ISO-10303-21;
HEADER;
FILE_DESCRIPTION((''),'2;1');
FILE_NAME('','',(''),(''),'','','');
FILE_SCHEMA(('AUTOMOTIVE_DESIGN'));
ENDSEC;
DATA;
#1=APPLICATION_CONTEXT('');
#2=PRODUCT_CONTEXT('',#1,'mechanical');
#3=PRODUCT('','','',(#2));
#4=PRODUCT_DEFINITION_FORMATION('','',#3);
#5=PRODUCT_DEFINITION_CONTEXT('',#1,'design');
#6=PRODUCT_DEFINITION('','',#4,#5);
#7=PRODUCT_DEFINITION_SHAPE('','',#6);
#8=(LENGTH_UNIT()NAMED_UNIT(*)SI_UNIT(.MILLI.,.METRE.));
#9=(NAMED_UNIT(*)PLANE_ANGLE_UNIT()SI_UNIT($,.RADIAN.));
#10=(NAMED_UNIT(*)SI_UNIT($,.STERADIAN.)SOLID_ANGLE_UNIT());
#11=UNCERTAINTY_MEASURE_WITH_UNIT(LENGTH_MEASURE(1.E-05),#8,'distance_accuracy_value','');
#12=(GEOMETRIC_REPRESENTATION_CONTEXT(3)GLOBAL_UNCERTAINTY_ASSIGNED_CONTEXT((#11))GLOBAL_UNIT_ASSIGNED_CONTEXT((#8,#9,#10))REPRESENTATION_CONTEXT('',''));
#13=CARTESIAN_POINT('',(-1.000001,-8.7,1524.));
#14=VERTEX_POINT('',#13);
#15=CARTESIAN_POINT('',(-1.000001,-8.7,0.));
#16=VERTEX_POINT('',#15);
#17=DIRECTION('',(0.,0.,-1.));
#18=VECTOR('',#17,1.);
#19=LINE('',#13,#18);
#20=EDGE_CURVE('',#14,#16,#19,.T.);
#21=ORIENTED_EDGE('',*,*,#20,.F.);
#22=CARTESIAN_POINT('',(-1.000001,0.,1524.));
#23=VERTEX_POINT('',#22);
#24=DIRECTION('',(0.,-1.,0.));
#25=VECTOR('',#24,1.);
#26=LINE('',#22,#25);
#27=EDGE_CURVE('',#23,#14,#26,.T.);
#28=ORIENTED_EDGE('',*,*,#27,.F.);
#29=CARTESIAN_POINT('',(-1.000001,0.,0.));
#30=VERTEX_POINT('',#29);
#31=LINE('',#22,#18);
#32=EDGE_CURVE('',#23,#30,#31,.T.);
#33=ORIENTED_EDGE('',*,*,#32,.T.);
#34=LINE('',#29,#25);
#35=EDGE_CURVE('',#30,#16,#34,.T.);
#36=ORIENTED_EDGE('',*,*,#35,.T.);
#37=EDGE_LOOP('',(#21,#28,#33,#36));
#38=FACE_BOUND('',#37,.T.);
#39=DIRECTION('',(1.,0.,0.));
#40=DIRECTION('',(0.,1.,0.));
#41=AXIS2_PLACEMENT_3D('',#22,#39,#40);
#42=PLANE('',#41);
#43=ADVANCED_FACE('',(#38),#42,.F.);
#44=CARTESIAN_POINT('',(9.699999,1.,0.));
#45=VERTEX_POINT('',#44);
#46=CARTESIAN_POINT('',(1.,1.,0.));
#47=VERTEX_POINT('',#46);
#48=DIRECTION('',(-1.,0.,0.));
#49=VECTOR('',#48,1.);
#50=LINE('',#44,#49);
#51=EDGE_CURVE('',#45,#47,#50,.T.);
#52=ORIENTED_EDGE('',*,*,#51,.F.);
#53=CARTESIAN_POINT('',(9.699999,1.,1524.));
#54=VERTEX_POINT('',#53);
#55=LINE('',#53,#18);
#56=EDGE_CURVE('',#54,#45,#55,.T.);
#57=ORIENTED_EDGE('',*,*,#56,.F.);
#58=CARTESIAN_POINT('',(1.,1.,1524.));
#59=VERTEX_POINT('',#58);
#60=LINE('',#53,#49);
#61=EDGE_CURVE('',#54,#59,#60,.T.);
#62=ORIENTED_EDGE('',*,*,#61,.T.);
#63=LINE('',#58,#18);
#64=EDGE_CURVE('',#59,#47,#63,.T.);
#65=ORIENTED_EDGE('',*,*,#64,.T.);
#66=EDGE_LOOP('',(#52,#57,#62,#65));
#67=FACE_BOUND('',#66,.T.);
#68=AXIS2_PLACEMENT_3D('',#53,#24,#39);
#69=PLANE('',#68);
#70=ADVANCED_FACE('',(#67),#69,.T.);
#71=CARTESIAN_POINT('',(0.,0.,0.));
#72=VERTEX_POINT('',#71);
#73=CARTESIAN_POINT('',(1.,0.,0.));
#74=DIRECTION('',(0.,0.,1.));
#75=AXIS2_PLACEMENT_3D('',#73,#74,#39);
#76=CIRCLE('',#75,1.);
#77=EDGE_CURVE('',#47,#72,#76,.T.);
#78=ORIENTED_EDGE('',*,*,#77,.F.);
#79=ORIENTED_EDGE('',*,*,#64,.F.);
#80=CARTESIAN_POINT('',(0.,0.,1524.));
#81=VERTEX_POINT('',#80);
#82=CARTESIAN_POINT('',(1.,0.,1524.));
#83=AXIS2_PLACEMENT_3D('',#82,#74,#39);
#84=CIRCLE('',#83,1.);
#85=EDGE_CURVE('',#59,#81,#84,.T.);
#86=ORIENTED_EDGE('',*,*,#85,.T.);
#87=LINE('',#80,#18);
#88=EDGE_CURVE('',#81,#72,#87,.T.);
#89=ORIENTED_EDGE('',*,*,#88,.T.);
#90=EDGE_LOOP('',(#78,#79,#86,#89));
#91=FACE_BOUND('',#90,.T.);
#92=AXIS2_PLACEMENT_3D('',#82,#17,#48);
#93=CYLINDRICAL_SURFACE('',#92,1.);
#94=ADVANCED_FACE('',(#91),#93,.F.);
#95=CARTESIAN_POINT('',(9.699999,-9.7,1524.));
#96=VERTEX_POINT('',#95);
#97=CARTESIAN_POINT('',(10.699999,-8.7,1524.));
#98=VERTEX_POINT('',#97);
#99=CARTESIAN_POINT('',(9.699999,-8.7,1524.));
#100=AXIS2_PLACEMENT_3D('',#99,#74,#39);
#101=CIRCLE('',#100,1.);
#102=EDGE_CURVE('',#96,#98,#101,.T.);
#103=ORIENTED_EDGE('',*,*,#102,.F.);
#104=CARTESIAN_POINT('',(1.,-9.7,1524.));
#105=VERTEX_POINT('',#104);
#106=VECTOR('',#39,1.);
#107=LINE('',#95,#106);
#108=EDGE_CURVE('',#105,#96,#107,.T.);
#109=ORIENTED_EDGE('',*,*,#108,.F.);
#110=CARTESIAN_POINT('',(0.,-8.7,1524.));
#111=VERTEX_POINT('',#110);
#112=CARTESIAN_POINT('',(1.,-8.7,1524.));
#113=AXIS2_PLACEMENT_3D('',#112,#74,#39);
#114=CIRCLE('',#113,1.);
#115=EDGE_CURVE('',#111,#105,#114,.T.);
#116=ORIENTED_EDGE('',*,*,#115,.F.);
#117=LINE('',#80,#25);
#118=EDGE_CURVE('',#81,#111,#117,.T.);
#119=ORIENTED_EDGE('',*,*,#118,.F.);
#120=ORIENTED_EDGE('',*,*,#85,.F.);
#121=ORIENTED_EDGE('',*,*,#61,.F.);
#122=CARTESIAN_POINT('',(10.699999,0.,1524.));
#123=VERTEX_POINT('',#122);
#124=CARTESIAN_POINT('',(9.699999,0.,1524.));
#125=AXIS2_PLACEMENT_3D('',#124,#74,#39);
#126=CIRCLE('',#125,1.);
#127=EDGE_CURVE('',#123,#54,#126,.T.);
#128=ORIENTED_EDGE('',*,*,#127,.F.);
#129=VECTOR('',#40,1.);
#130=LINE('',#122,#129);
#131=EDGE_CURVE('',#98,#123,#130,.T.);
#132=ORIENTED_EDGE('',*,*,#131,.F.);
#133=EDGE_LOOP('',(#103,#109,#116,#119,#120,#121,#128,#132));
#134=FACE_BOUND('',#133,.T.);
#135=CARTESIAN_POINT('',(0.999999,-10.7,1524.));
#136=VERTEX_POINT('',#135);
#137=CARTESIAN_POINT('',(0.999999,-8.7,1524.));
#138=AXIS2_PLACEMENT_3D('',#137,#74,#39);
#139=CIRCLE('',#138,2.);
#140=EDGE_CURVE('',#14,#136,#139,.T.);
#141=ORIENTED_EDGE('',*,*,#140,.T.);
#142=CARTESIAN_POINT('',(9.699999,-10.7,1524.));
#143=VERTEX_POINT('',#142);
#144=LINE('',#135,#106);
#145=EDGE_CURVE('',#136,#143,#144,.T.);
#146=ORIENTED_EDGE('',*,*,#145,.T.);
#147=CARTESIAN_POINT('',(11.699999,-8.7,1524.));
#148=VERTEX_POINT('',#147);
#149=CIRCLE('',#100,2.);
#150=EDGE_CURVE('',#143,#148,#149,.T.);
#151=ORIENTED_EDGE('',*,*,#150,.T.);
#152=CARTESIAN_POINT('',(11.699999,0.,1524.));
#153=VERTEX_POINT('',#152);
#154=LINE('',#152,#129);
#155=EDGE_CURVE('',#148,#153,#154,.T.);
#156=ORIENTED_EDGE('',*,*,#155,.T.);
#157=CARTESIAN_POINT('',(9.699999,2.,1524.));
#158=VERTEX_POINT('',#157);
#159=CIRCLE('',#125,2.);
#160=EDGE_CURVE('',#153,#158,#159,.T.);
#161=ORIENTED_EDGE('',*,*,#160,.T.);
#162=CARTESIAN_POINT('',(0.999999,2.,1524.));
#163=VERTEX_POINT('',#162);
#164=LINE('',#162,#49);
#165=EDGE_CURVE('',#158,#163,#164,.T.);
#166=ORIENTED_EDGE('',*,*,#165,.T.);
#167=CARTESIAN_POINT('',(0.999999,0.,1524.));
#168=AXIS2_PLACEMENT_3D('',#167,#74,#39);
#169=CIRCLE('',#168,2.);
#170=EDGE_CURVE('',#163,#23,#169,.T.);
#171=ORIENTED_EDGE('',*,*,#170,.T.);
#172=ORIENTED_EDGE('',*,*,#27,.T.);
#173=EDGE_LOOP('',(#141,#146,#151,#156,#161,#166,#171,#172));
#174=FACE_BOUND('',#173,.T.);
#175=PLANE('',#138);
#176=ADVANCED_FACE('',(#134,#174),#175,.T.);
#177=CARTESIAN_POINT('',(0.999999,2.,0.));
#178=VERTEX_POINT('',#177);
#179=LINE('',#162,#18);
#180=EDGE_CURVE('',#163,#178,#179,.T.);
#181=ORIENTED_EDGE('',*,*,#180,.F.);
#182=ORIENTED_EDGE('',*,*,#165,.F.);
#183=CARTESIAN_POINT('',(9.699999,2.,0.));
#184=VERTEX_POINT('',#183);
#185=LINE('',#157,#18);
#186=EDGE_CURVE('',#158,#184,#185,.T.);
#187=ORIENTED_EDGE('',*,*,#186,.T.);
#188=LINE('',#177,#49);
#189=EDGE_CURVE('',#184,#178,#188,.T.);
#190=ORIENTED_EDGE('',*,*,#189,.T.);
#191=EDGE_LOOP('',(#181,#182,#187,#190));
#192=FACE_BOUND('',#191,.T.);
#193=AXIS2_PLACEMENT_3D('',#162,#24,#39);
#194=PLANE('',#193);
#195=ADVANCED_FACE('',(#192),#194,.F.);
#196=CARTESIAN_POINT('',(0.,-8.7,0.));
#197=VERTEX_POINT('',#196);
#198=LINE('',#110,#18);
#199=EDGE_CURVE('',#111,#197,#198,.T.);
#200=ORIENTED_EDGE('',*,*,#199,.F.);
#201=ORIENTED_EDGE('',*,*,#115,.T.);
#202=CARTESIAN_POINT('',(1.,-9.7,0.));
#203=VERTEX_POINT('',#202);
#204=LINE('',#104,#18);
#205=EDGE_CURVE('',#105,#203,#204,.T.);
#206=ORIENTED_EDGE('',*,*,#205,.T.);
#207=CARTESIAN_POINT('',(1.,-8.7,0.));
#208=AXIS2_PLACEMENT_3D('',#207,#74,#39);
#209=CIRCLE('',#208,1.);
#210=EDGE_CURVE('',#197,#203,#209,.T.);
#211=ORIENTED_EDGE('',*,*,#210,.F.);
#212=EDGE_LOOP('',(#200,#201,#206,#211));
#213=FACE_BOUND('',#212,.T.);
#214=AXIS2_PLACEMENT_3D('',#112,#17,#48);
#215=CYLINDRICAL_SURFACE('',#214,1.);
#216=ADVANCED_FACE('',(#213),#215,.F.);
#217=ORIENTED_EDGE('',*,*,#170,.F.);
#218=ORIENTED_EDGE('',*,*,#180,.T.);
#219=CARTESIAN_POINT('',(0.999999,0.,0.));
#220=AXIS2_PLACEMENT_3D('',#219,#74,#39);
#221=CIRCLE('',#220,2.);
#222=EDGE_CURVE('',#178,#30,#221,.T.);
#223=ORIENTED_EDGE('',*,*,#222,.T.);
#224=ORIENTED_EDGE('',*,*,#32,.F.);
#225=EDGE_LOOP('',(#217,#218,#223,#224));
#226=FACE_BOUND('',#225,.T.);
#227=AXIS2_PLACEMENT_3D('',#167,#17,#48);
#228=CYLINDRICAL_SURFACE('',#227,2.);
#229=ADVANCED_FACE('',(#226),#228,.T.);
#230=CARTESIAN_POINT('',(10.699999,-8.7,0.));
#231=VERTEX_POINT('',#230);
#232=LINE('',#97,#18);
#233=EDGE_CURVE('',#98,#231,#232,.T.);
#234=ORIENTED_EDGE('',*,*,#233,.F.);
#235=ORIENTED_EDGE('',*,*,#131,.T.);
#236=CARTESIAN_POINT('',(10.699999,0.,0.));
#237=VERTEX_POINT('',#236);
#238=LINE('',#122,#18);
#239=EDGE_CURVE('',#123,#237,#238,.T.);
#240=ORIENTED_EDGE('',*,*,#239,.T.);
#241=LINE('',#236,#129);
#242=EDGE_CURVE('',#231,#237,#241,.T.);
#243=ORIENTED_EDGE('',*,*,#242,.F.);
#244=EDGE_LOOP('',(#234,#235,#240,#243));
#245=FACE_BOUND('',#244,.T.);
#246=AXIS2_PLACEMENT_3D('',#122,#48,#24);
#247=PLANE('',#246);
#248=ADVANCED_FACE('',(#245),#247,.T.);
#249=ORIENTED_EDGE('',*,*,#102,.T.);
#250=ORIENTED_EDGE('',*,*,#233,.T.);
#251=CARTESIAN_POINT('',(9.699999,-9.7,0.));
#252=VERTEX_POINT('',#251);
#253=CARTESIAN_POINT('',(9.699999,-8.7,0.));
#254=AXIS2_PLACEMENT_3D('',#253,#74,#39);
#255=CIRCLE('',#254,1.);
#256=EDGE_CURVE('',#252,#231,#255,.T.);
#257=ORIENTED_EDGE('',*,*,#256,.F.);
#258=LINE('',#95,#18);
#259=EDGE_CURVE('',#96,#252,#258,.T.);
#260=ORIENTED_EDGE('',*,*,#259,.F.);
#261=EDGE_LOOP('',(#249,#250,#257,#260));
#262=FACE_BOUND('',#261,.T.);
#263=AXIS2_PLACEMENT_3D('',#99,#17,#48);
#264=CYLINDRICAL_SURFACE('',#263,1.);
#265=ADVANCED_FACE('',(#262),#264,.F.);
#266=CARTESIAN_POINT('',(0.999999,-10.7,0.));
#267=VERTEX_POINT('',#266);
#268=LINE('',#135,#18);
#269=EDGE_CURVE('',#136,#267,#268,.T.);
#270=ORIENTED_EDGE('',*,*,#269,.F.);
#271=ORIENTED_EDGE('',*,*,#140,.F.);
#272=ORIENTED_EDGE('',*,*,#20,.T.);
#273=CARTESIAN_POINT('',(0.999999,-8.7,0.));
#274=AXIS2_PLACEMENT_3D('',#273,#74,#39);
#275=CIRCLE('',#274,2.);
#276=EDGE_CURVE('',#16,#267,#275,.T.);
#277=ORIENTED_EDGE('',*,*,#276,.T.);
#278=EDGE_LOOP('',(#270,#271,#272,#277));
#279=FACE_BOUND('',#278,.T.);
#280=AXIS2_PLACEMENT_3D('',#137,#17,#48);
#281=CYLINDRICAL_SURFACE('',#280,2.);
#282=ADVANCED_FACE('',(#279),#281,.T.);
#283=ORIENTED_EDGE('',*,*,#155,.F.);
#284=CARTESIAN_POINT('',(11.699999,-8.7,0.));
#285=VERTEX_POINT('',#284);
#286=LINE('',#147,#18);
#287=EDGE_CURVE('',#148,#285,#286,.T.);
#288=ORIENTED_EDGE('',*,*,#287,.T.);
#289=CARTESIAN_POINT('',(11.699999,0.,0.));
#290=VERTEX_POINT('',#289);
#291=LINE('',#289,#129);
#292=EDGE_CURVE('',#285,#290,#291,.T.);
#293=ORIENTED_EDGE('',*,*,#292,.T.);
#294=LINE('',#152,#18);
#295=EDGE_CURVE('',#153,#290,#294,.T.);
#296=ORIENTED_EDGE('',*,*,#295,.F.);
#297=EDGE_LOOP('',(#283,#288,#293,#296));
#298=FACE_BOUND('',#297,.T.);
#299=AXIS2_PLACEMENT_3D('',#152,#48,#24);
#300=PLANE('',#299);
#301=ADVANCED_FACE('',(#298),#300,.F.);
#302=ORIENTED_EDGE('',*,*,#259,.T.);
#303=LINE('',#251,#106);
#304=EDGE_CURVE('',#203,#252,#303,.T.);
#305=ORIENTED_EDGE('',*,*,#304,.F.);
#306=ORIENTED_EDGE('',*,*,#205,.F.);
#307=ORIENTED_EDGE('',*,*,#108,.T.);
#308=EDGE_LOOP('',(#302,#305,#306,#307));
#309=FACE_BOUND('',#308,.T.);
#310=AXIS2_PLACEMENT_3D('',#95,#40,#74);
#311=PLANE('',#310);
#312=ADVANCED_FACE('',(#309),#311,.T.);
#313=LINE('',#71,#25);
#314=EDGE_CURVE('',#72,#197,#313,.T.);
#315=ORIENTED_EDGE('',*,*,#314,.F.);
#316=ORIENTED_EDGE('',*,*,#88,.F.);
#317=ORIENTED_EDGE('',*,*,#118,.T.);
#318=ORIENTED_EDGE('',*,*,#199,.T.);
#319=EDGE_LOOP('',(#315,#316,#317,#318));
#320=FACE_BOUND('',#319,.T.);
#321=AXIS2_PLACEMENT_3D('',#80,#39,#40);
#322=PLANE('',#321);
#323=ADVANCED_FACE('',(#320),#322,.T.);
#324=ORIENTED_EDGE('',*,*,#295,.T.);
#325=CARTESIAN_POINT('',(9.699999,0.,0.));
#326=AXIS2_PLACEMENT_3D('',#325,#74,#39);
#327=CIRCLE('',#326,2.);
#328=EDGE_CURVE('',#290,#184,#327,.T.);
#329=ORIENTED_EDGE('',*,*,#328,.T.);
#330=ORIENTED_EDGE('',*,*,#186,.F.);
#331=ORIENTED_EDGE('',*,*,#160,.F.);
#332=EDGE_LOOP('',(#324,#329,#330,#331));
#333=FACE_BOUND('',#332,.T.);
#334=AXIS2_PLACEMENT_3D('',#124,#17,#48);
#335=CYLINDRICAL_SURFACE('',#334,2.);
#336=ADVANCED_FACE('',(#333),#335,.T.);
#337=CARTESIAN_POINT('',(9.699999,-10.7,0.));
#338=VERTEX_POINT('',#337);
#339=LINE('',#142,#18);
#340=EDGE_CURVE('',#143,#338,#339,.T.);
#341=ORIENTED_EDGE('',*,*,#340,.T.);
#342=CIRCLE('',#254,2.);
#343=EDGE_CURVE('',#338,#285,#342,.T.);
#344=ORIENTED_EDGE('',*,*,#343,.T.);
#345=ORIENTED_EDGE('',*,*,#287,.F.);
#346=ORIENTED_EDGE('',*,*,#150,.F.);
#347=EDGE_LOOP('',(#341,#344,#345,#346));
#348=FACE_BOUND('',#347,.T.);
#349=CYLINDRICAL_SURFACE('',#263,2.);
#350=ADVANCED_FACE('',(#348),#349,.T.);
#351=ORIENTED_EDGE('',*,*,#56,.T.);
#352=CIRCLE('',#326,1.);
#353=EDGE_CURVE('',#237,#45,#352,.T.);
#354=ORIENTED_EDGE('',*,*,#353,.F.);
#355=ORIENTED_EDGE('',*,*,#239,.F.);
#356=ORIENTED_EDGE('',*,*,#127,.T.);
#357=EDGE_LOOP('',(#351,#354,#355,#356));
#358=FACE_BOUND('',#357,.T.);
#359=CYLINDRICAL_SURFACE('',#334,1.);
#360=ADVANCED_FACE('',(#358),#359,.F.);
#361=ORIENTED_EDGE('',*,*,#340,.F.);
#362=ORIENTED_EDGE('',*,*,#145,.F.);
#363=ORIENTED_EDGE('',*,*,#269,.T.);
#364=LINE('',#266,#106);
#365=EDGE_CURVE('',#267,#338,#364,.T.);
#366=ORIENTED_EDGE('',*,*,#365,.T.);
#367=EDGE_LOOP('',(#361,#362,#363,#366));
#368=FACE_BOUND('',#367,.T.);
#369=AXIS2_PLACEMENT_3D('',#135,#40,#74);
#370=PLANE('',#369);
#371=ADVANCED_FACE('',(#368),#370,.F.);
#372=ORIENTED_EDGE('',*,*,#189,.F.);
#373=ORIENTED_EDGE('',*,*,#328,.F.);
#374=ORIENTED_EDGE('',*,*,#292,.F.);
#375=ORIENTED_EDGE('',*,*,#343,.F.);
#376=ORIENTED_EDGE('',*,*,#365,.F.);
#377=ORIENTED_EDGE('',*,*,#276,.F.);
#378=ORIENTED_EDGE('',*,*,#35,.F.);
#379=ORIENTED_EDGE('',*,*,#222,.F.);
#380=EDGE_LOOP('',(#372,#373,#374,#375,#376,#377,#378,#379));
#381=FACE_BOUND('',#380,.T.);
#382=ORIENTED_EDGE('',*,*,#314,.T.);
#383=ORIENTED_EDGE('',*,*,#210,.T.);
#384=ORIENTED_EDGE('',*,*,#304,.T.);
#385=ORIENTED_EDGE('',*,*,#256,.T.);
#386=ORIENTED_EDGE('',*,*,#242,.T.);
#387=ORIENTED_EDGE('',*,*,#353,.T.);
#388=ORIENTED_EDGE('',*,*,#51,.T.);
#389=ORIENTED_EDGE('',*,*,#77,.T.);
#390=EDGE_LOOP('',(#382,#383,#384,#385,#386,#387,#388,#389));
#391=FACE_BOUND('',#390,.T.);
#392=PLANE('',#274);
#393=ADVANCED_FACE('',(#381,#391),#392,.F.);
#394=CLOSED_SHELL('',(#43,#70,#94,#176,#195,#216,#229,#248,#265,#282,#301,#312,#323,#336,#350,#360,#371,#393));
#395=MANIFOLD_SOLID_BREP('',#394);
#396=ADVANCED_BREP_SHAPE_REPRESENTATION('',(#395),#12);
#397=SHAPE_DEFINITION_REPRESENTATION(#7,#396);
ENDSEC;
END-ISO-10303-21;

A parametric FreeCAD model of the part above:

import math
import FreeCAD as App
import Part
import Sketcher

doc = App.newDocument("Part")
params = doc.addObject("Spreadsheet::Sheet", "Params")
for row, (alias, value) in enumerate([
    ("sketch1_radius", "2 mm"),
    ("sketch1_radius2", "1 mm"),
    ("sketch1_width", "8.7 mm"),
    ("pad1_length", "1524 mm"),
], start=1):
    params.set(f"A{row}", alias)
    params.set(f"B{row}", "=" + value)
    params.setAlias(f"B{row}", alias)

body = doc.addObject("PartDesign::Body", "Body")

# Sketch on XY plane
sketch1 = doc.addObject("Sketcher::SketchObject", "Sketch")
body.addObject(sketch1)
sketch1.AttachmentSupport = (doc.XY_Plane, [""])
sketch1.MapMode = "FlatFace"
sketch1.addGeometry([
    Part.LineSegment(App.Vector(9.7, 2, 0), App.Vector(1, 2, 0)),  # 0
    Part.ArcOfCircle(Part.Circle(App.Vector(1, 0, 0), App.Vector(0, 0, 1), 2), math.radians(90), math.radians(180)),  # 1
    Part.LineSegment(App.Vector(-1, 0, 0), App.Vector(-1, -8.7, 0)),  # 2
    Part.ArcOfCircle(Part.Circle(App.Vector(1, -8.7, 0), App.Vector(0, 0, 1), 2), math.radians(180), math.radians(270)),  # 3
    Part.LineSegment(App.Vector(1, -10.7, 0), App.Vector(9.7, -10.7, 0)),  # 4
    Part.ArcOfCircle(Part.Circle(App.Vector(9.7, -8.7, 0), App.Vector(0, 0, 1), 2), math.radians(-90), math.radians(0)),  # 5
    Part.LineSegment(App.Vector(11.7, -8.7, 0), App.Vector(11.7, 0, 0)),  # 6
    Part.ArcOfCircle(Part.Circle(App.Vector(9.7, 0, 0), App.Vector(0, 0, 1), 2), math.radians(0), math.radians(90)),  # 7
    Part.ArcOfCircle(Part.Circle(App.Vector(9.7, 0, 0), App.Vector(0, 0, 1), 1), math.radians(0), math.radians(90)),  # 8
    Part.LineSegment(App.Vector(10.7, 0, 0), App.Vector(10.7, -8.7, 0)),  # 9
    Part.ArcOfCircle(Part.Circle(App.Vector(9.7, -8.7, 0), App.Vector(0, 0, 1), 1), math.radians(-90), math.radians(0)),  # 10
    Part.LineSegment(App.Vector(9.7, -9.7, 0), App.Vector(1, -9.7, 0)),  # 11
    Part.ArcOfCircle(Part.Circle(App.Vector(1, -8.7, 0), App.Vector(0, 0, 1), 1), math.radians(-180), math.radians(-90)),  # 12
    Part.LineSegment(App.Vector(0, -8.7, 0), App.Vector(0, 0, 0)),  # 13
    Part.ArcOfCircle(Part.Circle(App.Vector(1, 0, 0), App.Vector(0, 0, 1), 1), math.radians(90), math.radians(180)),  # 14
    Part.LineSegment(App.Vector(1, 1, 0), App.Vector(9.7, 1, 0)),  # 15
], False)
sketch1.addConstraint([
    Sketcher.Constraint("Tangent", 0, 2, 1, 1),
    Sketcher.Constraint("Tangent", 1, 2, 2, 1),
    Sketcher.Constraint("Tangent", 2, 2, 3, 1),
    Sketcher.Constraint("Tangent", 3, 2, 4, 1),
    Sketcher.Constraint("Tangent", 4, 2, 5, 1),
    Sketcher.Constraint("Tangent", 5, 2, 6, 1),
    Sketcher.Constraint("Tangent", 6, 2, 7, 1),
    Sketcher.Constraint("Tangent", 7, 2, 0, 1),
    Sketcher.Constraint("Tangent", 8, 1, 9, 1),
    Sketcher.Constraint("Tangent", 9, 2, 10, 2),
    Sketcher.Constraint("Tangent", 10, 1, 11, 1),
    Sketcher.Constraint("Tangent", 11, 2, 12, 2),
    Sketcher.Constraint("Tangent", 12, 1, 13, 1),
    Sketcher.Constraint("Tangent", 13, 2, 14, 2),
    Sketcher.Constraint("Tangent", 14, 1, 15, 1),
    Sketcher.Constraint("Tangent", 15, 2, 8, 2),
    Sketcher.Constraint("Horizontal", 0),
    Sketcher.Constraint("Vertical", 2),
    Sketcher.Constraint("Horizontal", 4),
    Sketcher.Constraint("Vertical", 6),
    Sketcher.Constraint("Vertical", 9),
    Sketcher.Constraint("Horizontal", 11),
    Sketcher.Constraint("Vertical", 13),
    Sketcher.Constraint("Horizontal", 15),
    Sketcher.Constraint("Coincident", 13, 2, -1, 1),
    Sketcher.Constraint("Coincident", 8, 3, 7, 3),
    Sketcher.Constraint("Coincident", 10, 3, 5, 3),
    Sketcher.Constraint("Coincident", 12, 3, 3, 3),
    Sketcher.Constraint("Equal", 1, 3),
    Sketcher.Constraint("Equal", 3, 5),
    Sketcher.Constraint("Equal", 5, 7),
    Sketcher.Constraint("Equal", 12, 14),
    Sketcher.Constraint("Equal", 15, 2),
    Sketcher.Constraint("Radius", 1, 2.0),
    Sketcher.Constraint("Radius", 8, 1.0),
    Sketcher.Constraint("DistanceX", 0, 2, 0, 1, 8.7),
])
sketch1.setExpression("Constraints[33]", "Params.sketch1_radius")
sketch1.setExpression("Constraints[34]", "Params.sketch1_radius2")
sketch1.setExpression("Constraints[35]", "Params.sketch1_width")
pad1 = doc.addObject("PartDesign::Pad", "Pad")
body.addObject(pad1)
pad1.Profile = sketch1
pad1.setExpression("Length", "Params.pad1_length")

doc.recompute()
